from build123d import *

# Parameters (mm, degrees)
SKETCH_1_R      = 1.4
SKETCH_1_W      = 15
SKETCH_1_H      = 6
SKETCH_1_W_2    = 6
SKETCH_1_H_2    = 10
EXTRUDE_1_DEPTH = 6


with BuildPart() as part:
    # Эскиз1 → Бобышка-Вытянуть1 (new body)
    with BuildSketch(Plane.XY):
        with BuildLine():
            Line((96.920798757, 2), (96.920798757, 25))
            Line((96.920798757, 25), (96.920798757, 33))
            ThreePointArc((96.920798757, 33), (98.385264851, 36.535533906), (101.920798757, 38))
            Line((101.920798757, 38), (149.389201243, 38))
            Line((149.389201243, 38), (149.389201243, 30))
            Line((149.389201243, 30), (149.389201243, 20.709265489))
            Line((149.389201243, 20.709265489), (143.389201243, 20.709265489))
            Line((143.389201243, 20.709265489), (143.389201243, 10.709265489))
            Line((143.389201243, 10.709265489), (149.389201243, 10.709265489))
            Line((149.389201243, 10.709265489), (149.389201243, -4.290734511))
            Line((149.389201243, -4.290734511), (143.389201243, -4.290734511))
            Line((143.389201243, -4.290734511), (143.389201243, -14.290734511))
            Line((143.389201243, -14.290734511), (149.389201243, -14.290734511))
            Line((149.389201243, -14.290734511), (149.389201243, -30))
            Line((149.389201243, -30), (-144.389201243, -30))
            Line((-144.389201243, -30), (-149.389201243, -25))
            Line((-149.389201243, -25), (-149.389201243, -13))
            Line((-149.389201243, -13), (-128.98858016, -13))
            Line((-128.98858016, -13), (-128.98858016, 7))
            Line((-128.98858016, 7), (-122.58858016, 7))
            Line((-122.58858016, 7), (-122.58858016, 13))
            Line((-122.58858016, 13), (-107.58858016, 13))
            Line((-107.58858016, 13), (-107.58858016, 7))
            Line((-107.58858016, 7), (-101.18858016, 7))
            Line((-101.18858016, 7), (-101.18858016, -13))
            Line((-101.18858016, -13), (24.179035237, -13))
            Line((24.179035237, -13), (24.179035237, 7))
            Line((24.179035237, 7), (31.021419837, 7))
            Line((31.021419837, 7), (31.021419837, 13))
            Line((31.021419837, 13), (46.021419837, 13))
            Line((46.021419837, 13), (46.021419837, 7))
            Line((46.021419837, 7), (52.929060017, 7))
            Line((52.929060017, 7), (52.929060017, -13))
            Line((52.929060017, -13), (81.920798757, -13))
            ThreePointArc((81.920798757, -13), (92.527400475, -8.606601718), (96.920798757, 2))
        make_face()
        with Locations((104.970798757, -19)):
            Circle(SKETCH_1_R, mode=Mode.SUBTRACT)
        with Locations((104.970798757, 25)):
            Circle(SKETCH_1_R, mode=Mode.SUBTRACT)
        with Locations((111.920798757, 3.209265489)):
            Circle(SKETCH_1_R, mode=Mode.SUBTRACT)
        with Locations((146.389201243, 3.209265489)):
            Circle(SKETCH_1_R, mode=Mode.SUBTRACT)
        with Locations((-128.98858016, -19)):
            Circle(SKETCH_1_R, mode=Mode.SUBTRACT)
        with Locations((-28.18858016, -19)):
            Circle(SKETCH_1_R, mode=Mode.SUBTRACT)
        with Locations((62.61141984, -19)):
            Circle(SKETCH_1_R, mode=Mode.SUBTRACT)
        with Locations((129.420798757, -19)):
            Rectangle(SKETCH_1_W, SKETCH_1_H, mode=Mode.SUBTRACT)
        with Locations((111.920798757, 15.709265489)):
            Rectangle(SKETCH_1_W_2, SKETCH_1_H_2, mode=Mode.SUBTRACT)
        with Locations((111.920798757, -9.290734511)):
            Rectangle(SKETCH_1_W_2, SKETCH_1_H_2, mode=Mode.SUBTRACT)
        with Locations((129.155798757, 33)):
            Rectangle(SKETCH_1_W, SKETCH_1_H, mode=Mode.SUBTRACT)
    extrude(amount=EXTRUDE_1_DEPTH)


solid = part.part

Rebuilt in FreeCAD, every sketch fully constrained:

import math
import FreeCAD as App
import Part
import Sketcher
Q = App.Units.Quantity


def add_polygon(sketch, points):
    """Adds a closed chain of lines whose ends are joined by coincident constraints."""
    first, n = sketch.GeometryCount, len(points)
    for a, b in zip(points, points[1:] + points[:1]):
        sketch.addGeometry(Part.LineSegment(App.Vector(*a, 0), App.Vector(*b, 0)), False)
    for i in range(n):
        sketch.addConstraint(Sketcher.Constraint("Coincident", first + i, 2, first + (i + 1) % n, 1))

doc = App.newDocument("Part")
body = doc.addObject("PartDesign::Body", "Body")

# Sketch on XY plane
sketch1 = body.newObject("Sketcher::SketchObject", "Sketch")
sketch1.AttachmentSupport = (doc.getObject("XY_Plane"), [""])
sketch1.MapMode = "FlatFace"
sketch1.addGeometry(Part.LineSegment(App.Vector(96.9, 33, 0), App.Vector(96.9, 2, 0)), False)  # 0
sketch1.addGeometry(Part.ArcOfCircle(Part.Circle(App.Vector(81.9, 2, 0), App.Vector(0, 0, 1), 15), math.radians(-90), math.radians(0)), False)  # 1
sketch1.addGeometry(Part.LineSegment(App.Vector(81.9, -13, 0), App.Vector(52.9, -13, 0)), False)  # 2
sketch1.addGeometry(Part.LineSegment(App.Vector(52.9, -13, 0), App.Vector(52.9, 7, 0)), False)  # 3
sketch1.addGeometry(Part.LineSegment(App.Vector(52.9, 7, 0), App.Vector(46, 7, 0)), False)  # 4
sketch1.addGeometry(Part.LineSegment(App.Vector(46, 7, 0), App.Vector(46, 13, 0)), False)  # 5
sketch1.addGeometry(Part.LineSegment(App.Vector(46, 13, 0), App.Vector(31, 13, 0)), False)  # 6
sketch1.addGeometry(Part.LineSegment(App.Vector(31, 13, 0), App.Vector(31, 7, 0)), False)  # 7
sketch1.addGeometry(Part.LineSegment(App.Vector(31, 7, 0), App.Vector(24.2, 7, 0)), False)  # 8
sketch1.addGeometry(Part.LineSegment(App.Vector(24.2, 7, 0), App.Vector(24.2, -13, 0)), False)  # 9
sketch1.addGeometry(Part.LineSegment(App.Vector(24.2, -13, 0), App.Vector(-101.2, -13, 0)), False)  # 10
sketch1.addGeometry(Part.LineSegment(App.Vector(-101.2, -13, 0), App.Vector(-101.2, 7, 0)), False)  # 11
sketch1.addGeometry(Part.LineSegment(App.Vector(-101.2, 7, 0), App.Vector(-107.6, 7, 0)), False)  # 12
sketch1.addGeometry(Part.LineSegment(App.Vector(-107.6, 7, 0), App.Vector(-107.6, 13, 0)), False)  # 13
sketch1.addGeometry(Part.LineSegment(App.Vector(-107.6, 13, 0), App.Vector(-122.6, 13, 0)), False)  # 14
sketch1.addGeometry(Part.LineSegment(App.Vector(-122.6, 13, 0), App.Vector(-122.6, 7, 0)), False)  # 15
sketch1.addGeometry(Part.LineSegment(App.Vector(-122.6, 7, 0), App.Vector(-129, 7, 0)), False)  # 16
sketch1.addGeometry(Part.LineSegment(App.Vector(-129, 7, 0), App.Vector(-129, -13, 0)), False)  # 17
sketch1.addGeometry(Part.LineSegment(App.Vector(-129, -13, 0), App.Vector(-149.4, -13, 0)), False)  # 18
sketch1.addGeometry(Part.LineSegment(App.Vector(-149.4, -13, 0), App.Vector(-149.4, -25, 0)), False)  # 19
sketch1.addGeometry(Part.LineSegment(App.Vector(-149.4, -25, 0), App.Vector(-144.4, -30, 0)), False)  # 20
sketch1.addGeometry(Part.LineSegment(App.Vector(-144.4, -30, 0), App.Vector(149.4, -30, 0)), False)  # 21
sketch1.addGeometry(Part.LineSegment(App.Vector(149.4, -30, 0), App.Vector(149.4, -14.3, 0)), False)  # 22
sketch1.addGeometry(Part.LineSegment(App.Vector(149.4, -14.3, 0), App.Vector(143.4, -14.3, 0)), False)  # 23
sketch1.addGeometry(Part.LineSegment(App.Vector(143.4, -14.3, 0), App.Vector(143.4, -4.3, 0)), False)  # 24
sketch1.addGeometry(Part.LineSegment(App.Vector(143.4, -4.3, 0), App.Vector(149.4, -4.3, 0)), False)  # 25
sketch1.addGeometry(Part.LineSegment(App.Vector(149.4, -4.3, 0), App.Vector(149.4, 10.7, 0)), False)  # 26
sketch1.addGeometry(Part.LineSegment(App.Vector(149.4, 10.7, 0), App.Vector(143.4, 10.7, 0)), False)  # 27
sketch1.addGeometry(Part.LineSegment(App.Vector(143.4, 10.7, 0), App.Vector(143.4, 20.7, 0)), False)  # 28
sketch1.addGeometry(Part.LineSegment(App.Vector(143.4, 20.7, 0), App.Vector(149.4, 20.7, 0)), False)  # 29
sketch1.addGeometry(Part.LineSegment(App.Vector(149.4, 20.7, 0), App.Vector(149.4, 38, 0)), False)  # 30
sketch1.addGeometry(Part.LineSegment(App.Vector(149.4, 38, 0), App.Vector(101.9, 38, 0)), False)  # 31
sketch1.addGeometry(Part.ArcOfCircle(Part.Circle(App.Vector(101.9, 33, 0), App.Vector(0, 0, 1), 5), math.radians(90), math.radians(180)), False)  # 32
add_polygon(sketch1, [(121.9, -22), (121.9, -16), (136.9, -16), (136.9, -22)])  # lines 33-36
sketch1.addGeometry(Part.Circle(App.Vector(105, -19, 0), App.Vector(0, 0, 1), 1.4), False)  # 37
add_polygon(sketch1, [(108.9, -14.3), (108.9, -4.3), (114.9, -4.3), (114.9, -14.3)])  # lines 38-41
sketch1.addGeometry(Part.Circle(App.Vector(62.6, -19, 0), App.Vector(0, 0, 1), 1.4), False)  # 42
sketch1.addGeometry(Part.Circle(App.Vector(146.4, 3.2, 0), App.Vector(0, 0, 1), 1.4), False)  # 43
sketch1.addGeometry(Part.Circle(App.Vector(111.9, 3.2, 0), App.Vector(0, 0, 1), 1.4), False)  # 44
sketch1.addGeometry(Part.Circle(App.Vector(-28.2, -19, 0), App.Vector(0, 0, 1), 1.4), False)  # 45
sketch1.addGeometry(Part.Circle(App.Vector(-129, -19, 0), App.Vector(0, 0, 1), 1.4), False)  # 46
add_polygon(sketch1, [(108.9, 10.7), (108.9, 20.7), (114.9, 20.7), (114.9, 10.7)])  # lines 47-50
sketch1.addGeometry(Part.Circle(App.Vector(105, 25, 0), App.Vector(0, 0, 1), 1.4), False)  # 51
add_polygon(sketch1, [(121.7, 30), (121.7, 36), (136.7, 36), (136.7, 30)])  # lines 52-55
sketch1.addConstraint([
    Sketcher.Constraint("Tangent", 0, 2, 1, 2),
    Sketcher.Constraint("Tangent", 1, 1, 2, 1),
    Sketcher.Constraint("Coincident", 2, 2, 3, 1),
    Sketcher.Constraint("Coincident", 3, 2, 4, 1),
    Sketcher.Constraint("Coincident", 4, 2, 5, 1),
    Sketcher.Constraint("Coincident", 5, 2, 6, 1),
    Sketcher.Constraint("Coincident", 6, 2, 7, 1),
    Sketcher.Constraint("Coincident", 7, 2, 8, 1),
    Sketcher.Constraint("Coincident", 8, 2, 9, 1),
    Sketcher.Constraint("Coincident", 9, 2, 10, 1),
    Sketcher.Constraint("Coincident", 10, 2, 11, 1),
    Sketcher.Constraint("Coincident", 11, 2, 12, 1),
    Sketcher.Constraint("Coincident", 12, 2, 13, 1),
    Sketcher.Constraint("Coincident", 13, 2, 14, 1),
    Sketcher.Constraint("Coincident", 14, 2, 15, 1),
    Sketcher.Constraint("Coincident", 15, 2, 16, 1),
    Sketcher.Constraint("Coincident", 16, 2, 17, 1),
    Sketcher.Constraint("Coincident", 17, 2, 18, 1),
    Sketcher.Constraint("Coincident", 18, 2, 19, 1),
    Sketcher.Constraint("Coincident", 19, 2, 20, 1),
    Sketcher.Constraint("Coincident", 20, 2, 21, 1),
    Sketcher.Constraint("Coincident", 21, 2, 22, 1),
    Sketcher.Constraint("Coincident", 22, 2, 23, 1),
    Sketcher.Constraint("Coincident", 23, 2, 24, 1),
    Sketcher.Constraint("Coincident", 24, 2, 25, 1),
    Sketcher.Constraint("Coincident", 25, 2, 26, 1),
    Sketcher.Constraint("Coincident", 26, 2, 27, 1),
    Sketcher.Constraint("Coincident", 27, 2, 28, 1),
    Sketcher.Constraint("Coincident", 28, 2, 29, 1),
    Sketcher.Constraint("Coincident", 29, 2, 30, 1),
    Sketcher.Constraint("Coincident", 30, 2, 31, 1),
    Sketcher.Constraint("Tangent", 31, 2, 32, 1),
    Sketcher.Constraint("Tangent", 32, 2, 0, 1),
    Sketcher.Constraint("Vertical", 0),
    Sketcher.Constraint("Horizontal", 2),
    Sketcher.Constraint("Vertical", 3),
    Sketcher.Constraint("Horizontal", 4),
    Sketcher.Constraint("Vertical", 5),
    Sketcher.Constraint("Horizontal", 6),
    Sketcher.Constraint("Vertical", 7),
    Sketcher.Constraint("Horizontal", 8),
    Sketcher.Constraint("Vertical", 9),
    Sketcher.Constraint("Horizontal", 10),
    Sketcher.Constraint("Vertical", 11),
    Sketcher.Constraint("Horizontal", 12),
    Sketcher.Constraint("Vertical", 13),
    Sketcher.Constraint("Horizontal", 14),
    Sketcher.Constraint("Vertical", 15),
    Sketcher.Constraint("Horizontal", 16),
    Sketcher.Constraint("Vertical", 17),
    Sketcher.Constraint("Horizontal", 18),
    Sketcher.Constraint("Vertical", 19),
    Sketcher.Constraint("Horizontal", 21),
    Sketcher.Constraint("Vertical", 22),
    Sketcher.Constraint("Horizontal", 23),
    Sketcher.Constraint("Vertical", 24),
    Sketcher.Constraint("Horizontal", 25),
    Sketcher.Constraint("Vertical", 26),
    Sketcher.Constraint("Horizontal", 27),
    Sketcher.Constraint("Vertical", 28),
    Sketcher.Constraint("Horizontal", 29),
    Sketcher.Constraint("Vertical", 30),
    Sketcher.Constraint("Horizontal", 31),
    Sketcher.Constraint("Vertical", 33),
    Sketcher.Constraint("Horizontal", 34),
    Sketcher.Constraint("Vertical", 35),
    Sketcher.Constraint("Horizontal", 36),
    Sketcher.Constraint("Vertical", 38),
    Sketcher.Constraint("Horizontal", 39),
    Sketcher.Constraint("Vertical", 40),
    Sketcher.Constraint("Horizontal", 41),
    Sketcher.Constraint("Vertical", 47),
    Sketcher.Constraint("Horizontal", 48),
    Sketcher.Constraint("Vertical", 49),
    Sketcher.Constraint("Horizontal", 50),
    Sketcher.Constraint("Vertical", 52),
    Sketcher.Constraint("Horizontal", 53),
    Sketcher.Constraint("Vertical", 54),
    Sketcher.Constraint("Horizontal", 55),
    Sketcher.Constraint("Equal", 37, 42),
    Sketcher.Constraint("Equal", 42, 43),
    Sketcher.Constraint("Equal", 43, 44),
    Sketcher.Constraint("Equal", 44, 45),
    Sketcher.Constraint("Equal", 45, 46),
    Sketcher.Constraint("Equal", 46, 51),
    Sketcher.Constraint("Horizontal", 37, 3, 42, 3),
    Sketcher.Constraint("Horizontal", 43, 3, 44, 3),
    Sketcher.Constraint("Horizontal", 42, 3, 45, 3),
    Sketcher.Constraint("Horizontal", 45, 3, 46, 3),
    Sketcher.Constraint("Horizontal", 4, 2, 7, 2),
    Sketcher.Constraint("Horizontal", 2, 2, 9, 2),
    Sketcher.Constraint("Horizontal", 8, 2, 11, 2),
    Sketcher.Constraint("Horizontal", 6, 2, 13, 2),
    Sketcher.Constraint("Horizontal", 12, 2, 15, 2),
    Sketcher.Constraint("Horizontal", 10, 2, 17, 2),
    Sketcher.Constraint("Horizontal", 25, 2, 38, 2),
    Sketcher.Constraint("Horizontal", 23, 2, 40, 2),
    Sketcher.Constraint("Horizontal", 29, 2, 47, 2),
    Sketcher.Constraint("Horizontal", 27, 2, 49, 2),
    Sketcher.Constraint("Vertical", 37, 3, 51, 3),
    Sketcher.Constraint("Vertical", 46, 3, 16, 2),
    Sketcher.Constraint("Vertical", 22, 2, 25, 2),
    Sketcher.Constraint("Vertical", 24, 2, 27, 2),
    Sketcher.Constraint("Vertical", 26, 2, 29, 2),
    Sketcher.Constraint("Vertical", 41, 2, 47, 2),
    Sketcher.Constraint("Vertical", 40, 2, 48, 2),
    Sketcher.Constraint("Equal", 6, 14),
    Sketcher.Constraint("Equal", 12, 16),
    Sketcher.Constraint("Equal", 14, 34),
    Sketcher.Constraint("Equal", 29, 39),
    Sketcher.Constraint("Equal", 36, 53),
    Sketcher.Constraint("Equal", 50, 5),
    Sketcher.Constraint("Equal", 55, 26),
    Sketcher.Constraint("Equal", 24, 28),
    Sketcher.Constraint("Equal", 15, 33),
    Sketcher.Constraint("Equal", 35, 52),
    Sketcher.Constraint("Radius", 1, 15.0),
    Sketcher.Constraint("Radius", 32, 5.0),
    Sketcher.Constraint("Diameter", 37, 2.8),
    Sketcher.Constraint("DistanceX", 6, 2, 6, 1, 15.0),
    Sketcher.Constraint("DistanceX", 23, 2, 23, 1, 6.0),
    Sketcher.Constraint("DistanceY", 0, 2, 0, 1, 31.0),
    Sketcher.Constraint("DistanceY", 3, 1, 3, 2, 20.0),
    Sketcher.Constraint("DistanceY", 19, 2, 19, 1, 12.0),
    Sketcher.Constraint("DistanceY", 24, 1, 24, 2, 10.0),
    Sketcher.Constraint("Angle", 20, Q("-45 deg")),
    Sketcher.Constraint("DistanceX", 12, 2, 12, 1, 6.4),
    Sketcher.Constraint("DistanceY", -1, 1, 1, 3, 2.0),
    Sketcher.Constraint("DistanceY", 37, 3, -1, 1, 19.0),
    Sketcher.Constraint("DistanceY", -1, 1, 51, 3, 25.0),
    Sketcher.Constraint("DistanceY", 20, 2, -1, 1, 30.0),
    Sketcher.Constraint("DistanceY", 33, 2, -1, 1, 16.0),
    Sketcher.Constraint("DistanceY", -1, 1, 52, 2, 36.0),
    Sketcher.Constraint("DistanceX", 1, 3, 44, 3, 30.0),
    Sketcher.Constraint("DistanceX", 10, 2, 45, 3, 73.0),
    Sketcher.Constraint("DistanceX", 43, 3, 21, 2, 3.0),
    Sketcher.Constraint("DistanceX", 44, 3, 33, 2, 10.0),
    Sketcher.Constraint("DistanceX", 38, 2, 44, 3, 3.0),
    Sketcher.Constraint("DistanceX", 45, 3, 42, 3, 90.8),
    Sketcher.Constraint("DistanceY", 22, 2, 43, 3, 17.5),
    Sketcher.Constraint("DistanceX", 1, 3, 37, 3, 23.05),
    Sketcher.Constraint("DistanceX", 4, 2, 42, 3, 16.59),
    Sketcher.Constraint("DistanceX", 48, 2, 52, 2, 6.735),
    Sketcher.Constraint("DistanceX", 2, 2, 2, 1, 28.991739),
    Sketcher.Constraint("DistanceX", 4, 2, 4, 1, 6.90764),
    Sketcher.Constraint("DistanceX", 18, 2, 18, 1, 20.400621),
    Sketcher.Constraint("DistanceX", -1, 1, 1, 3, 81.920799),
    Sketcher.Constraint("DistanceX", -1, 1, 43, 3, 146.389201),
    Sketcher.Constraint("DistanceX", 8, 2, 8, 1, 6.842385),
    Sketcher.Constraint("DistanceY", 22, 1, 22, 2, 15.709265),
])
pad1 = body.newObject("PartDesign::Pad", "Pad")
pad1.Profile = sketch1
pad1.Length = 6

doc.recompute()
